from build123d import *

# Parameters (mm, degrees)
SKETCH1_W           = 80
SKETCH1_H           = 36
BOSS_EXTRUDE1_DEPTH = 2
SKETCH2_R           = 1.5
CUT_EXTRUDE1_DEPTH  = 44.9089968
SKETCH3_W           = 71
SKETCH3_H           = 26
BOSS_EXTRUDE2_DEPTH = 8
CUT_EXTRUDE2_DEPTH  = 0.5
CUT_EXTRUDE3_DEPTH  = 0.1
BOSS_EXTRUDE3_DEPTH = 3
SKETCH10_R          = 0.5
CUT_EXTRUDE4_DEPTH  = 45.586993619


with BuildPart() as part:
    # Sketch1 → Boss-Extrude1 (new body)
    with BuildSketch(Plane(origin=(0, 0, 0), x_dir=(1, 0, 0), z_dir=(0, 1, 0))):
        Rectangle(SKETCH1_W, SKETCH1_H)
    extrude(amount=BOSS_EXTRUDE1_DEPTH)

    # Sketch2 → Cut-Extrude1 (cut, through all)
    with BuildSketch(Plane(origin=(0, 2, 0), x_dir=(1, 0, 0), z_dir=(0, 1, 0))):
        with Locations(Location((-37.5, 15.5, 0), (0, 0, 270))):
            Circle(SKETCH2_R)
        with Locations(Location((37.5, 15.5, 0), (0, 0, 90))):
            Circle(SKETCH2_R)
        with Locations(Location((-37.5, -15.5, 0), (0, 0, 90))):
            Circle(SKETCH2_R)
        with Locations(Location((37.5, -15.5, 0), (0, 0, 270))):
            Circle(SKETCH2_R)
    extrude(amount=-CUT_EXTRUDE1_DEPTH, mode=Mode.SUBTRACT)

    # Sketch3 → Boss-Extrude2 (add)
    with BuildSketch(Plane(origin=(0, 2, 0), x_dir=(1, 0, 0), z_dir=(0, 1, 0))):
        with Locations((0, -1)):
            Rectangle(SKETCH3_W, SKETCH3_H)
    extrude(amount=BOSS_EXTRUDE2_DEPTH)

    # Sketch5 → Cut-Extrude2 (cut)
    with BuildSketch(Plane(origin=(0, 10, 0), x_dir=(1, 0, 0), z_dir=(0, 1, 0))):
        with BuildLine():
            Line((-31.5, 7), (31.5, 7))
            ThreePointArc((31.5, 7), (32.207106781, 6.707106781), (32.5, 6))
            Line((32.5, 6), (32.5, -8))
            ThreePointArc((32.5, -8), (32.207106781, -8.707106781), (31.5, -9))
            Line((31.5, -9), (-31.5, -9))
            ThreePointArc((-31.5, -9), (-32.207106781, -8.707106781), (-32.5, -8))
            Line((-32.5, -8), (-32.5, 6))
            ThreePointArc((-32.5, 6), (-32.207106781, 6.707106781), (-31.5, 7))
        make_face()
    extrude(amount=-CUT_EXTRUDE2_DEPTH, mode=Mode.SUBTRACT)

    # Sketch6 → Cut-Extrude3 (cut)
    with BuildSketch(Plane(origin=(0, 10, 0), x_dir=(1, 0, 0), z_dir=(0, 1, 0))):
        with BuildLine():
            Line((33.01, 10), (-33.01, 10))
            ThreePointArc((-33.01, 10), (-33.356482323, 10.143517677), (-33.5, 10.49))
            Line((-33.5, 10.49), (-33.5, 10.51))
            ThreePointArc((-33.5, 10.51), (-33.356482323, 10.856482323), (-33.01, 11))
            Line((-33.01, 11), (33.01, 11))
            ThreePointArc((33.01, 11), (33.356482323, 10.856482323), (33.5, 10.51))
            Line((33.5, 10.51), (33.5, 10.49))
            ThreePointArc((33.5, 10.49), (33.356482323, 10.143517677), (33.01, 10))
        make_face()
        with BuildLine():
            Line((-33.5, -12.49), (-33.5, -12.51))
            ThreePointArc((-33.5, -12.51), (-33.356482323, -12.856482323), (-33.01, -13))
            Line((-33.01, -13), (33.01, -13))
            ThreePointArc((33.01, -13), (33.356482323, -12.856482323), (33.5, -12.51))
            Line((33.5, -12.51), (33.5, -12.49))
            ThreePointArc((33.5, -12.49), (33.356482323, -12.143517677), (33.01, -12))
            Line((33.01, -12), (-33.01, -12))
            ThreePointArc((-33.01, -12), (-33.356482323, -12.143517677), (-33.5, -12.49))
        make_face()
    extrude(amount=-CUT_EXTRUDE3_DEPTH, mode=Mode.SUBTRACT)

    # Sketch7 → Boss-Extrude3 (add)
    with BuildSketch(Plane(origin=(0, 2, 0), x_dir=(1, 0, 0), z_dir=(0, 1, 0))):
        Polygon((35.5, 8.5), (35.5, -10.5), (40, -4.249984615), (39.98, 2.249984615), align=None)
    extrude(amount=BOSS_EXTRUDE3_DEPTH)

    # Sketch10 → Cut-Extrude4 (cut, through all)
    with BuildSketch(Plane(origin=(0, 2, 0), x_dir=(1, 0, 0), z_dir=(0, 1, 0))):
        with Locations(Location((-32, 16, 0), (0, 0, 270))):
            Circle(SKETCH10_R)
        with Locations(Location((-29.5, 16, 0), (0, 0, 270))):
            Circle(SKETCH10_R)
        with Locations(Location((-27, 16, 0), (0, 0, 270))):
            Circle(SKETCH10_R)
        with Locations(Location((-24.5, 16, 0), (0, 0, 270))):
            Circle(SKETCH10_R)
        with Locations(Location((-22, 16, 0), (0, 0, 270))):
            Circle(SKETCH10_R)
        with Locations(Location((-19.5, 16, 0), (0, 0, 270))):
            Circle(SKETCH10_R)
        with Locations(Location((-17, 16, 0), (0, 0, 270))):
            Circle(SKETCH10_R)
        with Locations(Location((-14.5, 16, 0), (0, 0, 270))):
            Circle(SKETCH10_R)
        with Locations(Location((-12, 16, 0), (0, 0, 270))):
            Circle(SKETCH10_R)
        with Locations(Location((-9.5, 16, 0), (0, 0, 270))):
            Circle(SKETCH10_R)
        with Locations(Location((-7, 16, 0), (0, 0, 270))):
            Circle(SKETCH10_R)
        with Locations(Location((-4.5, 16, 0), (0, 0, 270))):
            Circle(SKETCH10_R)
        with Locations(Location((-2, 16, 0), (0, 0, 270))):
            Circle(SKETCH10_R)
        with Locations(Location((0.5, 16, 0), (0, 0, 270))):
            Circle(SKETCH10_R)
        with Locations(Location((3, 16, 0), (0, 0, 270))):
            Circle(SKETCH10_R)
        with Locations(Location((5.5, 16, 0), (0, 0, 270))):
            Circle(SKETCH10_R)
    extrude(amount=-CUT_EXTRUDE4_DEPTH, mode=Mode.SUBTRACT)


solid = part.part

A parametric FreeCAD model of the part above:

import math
import FreeCAD as App
import Part
import Sketcher
from FreeCAD import Vector
Q = App.Units.Quantity

doc = App.newDocument("Part")
body = doc.addObject("PartDesign::Body", "Body")

# Sketch on XZ plane
sketch1 = body.newObject("Sketcher::SketchObject", "Sketch")
sketch1.AttachmentSupport = (doc.getObject("XZ_Plane"), [""])
sketch1.MapMode = "FlatFace"
sketch1.addGeometry(Part.LineSegment(Vector(-40, -18, 0), Vector(-40, 18, 0)), False)
sketch1.addGeometry(Part.LineSegment(Vector(-40, 18, 0), Vector(40, 18, 0)), False)
sketch1.addGeometry(Part.LineSegment(Vector(40, 18, 0), Vector(40, -18, 0)), False)
sketch1.addGeometry(Part.LineSegment(Vector(40, -18, 0), Vector(-40, -18, 0)), False)
sketch1.addConstraint(Sketcher.Constraint("Coincident", 0, 2, 1, 1))
sketch1.addConstraint(Sketcher.Constraint("Coincident", 1, 2, 2, 1))
sketch1.addConstraint(Sketcher.Constraint("Coincident", 2, 2, 3, 1))
sketch1.addConstraint(Sketcher.Constraint("Coincident", 3, 2, 0, 1))
sketch1.addConstraint(Sketcher.Constraint("Vertical", 0))
sketch1.addConstraint(Sketcher.Constraint("Horizontal", 1))
sketch1.addConstraint(Sketcher.Constraint("Vertical", 2))
sketch1.addConstraint(Sketcher.Constraint("Horizontal", 3))
sketch1.addConstraint(Sketcher.Constraint("Symmetric", 0, 2, 2, 2, -1, 1))
sketch1.addConstraint(Sketcher.Constraint("DistanceX", 1, 1, 1, 2, Q("80 mm")))
sketch1.addConstraint(Sketcher.Constraint("DistanceY", 0, 1, 0, 2, Q("36 mm")))
pad1 = body.newObject("PartDesign::Pad", "Pad")
pad1.Profile = sketch1
pad1.Length = 2
pad1.Reversed = True

# Sketch on XZ plane
sketch2 = body.newObject("Sketcher::SketchObject", "Sketch001")
sketch2.AttachmentSupport = (doc.getObject("XZ_Plane"), [""])
sketch2.MapMode = "FlatFace"
sketch2.AttachmentOffset = App.Placement(Vector(0, 0, -2), App.Rotation())
sketch2.addGeometry(Part.Circle(Vector(-37.5, -15.5, 0), Vector(0, 0, 1), 1.5), False)
sketch2.addGeometry(Part.Circle(Vector(37.5, -15.5, 0), Vector(0, 0, 1), 1.5), False)
sketch2.addGeometry(Part.Circle(Vector(-37.5, 15.5, 0), Vector(0, 0, 1), 1.5), False)
sketch2.addGeometry(Part.Circle(Vector(37.5, 15.5, 0), Vector(0, 0, 1), 1.5), False)
sketch2.addConstraint(Sketcher.Constraint("Equal", 0, 1))
sketch2.addConstraint(Sketcher.Constraint("Equal", 1, 2))
sketch2.addConstraint(Sketcher.Constraint("Equal", 2, 3))
sketch2.addConstraint(Sketcher.Constraint("Symmetric", 1, 3, 2, 3, -1, 1))
sketch2.addConstraint(Sketcher.Constraint("Symmetric", 0, 3, 3, 3, -1, 1))
sketch2.addConstraint(Sketcher.Constraint("Symmetric", 0, 3, 1, 3, -2))
sketch2.addConstraint(Sketcher.Constraint("Diameter", 0, Q("3 mm")))
sketch2.addConstraint(Sketcher.Constraint("DistanceX", 0, 3, 1, 3, Q("75 mm")))
sketch2.addConstraint(Sketcher.Constraint("DistanceY", 0, 3, 2, 3, Q("31 mm")))
pocket1 = body.newObject("PartDesign::Pocket", "Pocket")
pocket1.Profile = sketch2
pocket1.Type = "ThroughAll"
pocket1.Reversed = True

# Sketch on XZ plane
sketch3 = body.newObject("Sketcher::SketchObject", "Sketch002")
sketch3.AttachmentSupport = (doc.getObject("XZ_Plane"), [""])
sketch3.MapMode = "FlatFace"
sketch3.AttachmentOffset = App.Placement(Vector(0, 0, -2), App.Rotation())
sketch3.addGeometry(Part.LineSegment(Vector(-36, -12, 0), Vector(-36, 14, 0)), False)
sketch3.addGeometry(Part.LineSegment(Vector(-36, 14, 0), Vector(36, 14, 0)), False)
sketch3.addGeometry(Part.LineSegment(Vector(36, 14, 0), Vector(36, -12, 0)), False)
sketch3.addGeometry(Part.LineSegment(Vector(36, -12, 0), Vector(-36, -12, 0)), False)
sketch3.addConstraint(Sketcher.Constraint("Coincident", 0, 2, 1, 1))
sketch3.addConstraint(Sketcher.Constraint("Coincident", 1, 2, 2, 1))
sketch3.addConstraint(Sketcher.Constraint("Coincident", 2, 2, 3, 1))
sketch3.addConstraint(Sketcher.Constraint("Coincident", 3, 2, 0, 1))
sketch3.addConstraint(Sketcher.Constraint("Vertical", 0))
sketch3.addConstraint(Sketcher.Constraint("Horizontal", 1))
sketch3.addConstraint(Sketcher.Constraint("Vertical", 2))
sketch3.addConstraint(Sketcher.Constraint("Horizontal", 3))
sketch3.addConstraint(Sketcher.Constraint("DistanceX", 1, 1, 1, 2, Q("71 mm")))
sketch3.addConstraint(Sketcher.Constraint("DistanceY", 0, 1, 0, 2, Q("26 mm")))
sketch3.addConstraint(Sketcher.Constraint("DistanceY", -1, 1, 0, 2, Q("14 mm")))
sketch3.addConstraint(Sketcher.Constraint("DistanceX", 0, 2, -1, 1, Q("35.5 mm")))
pad2 = body.newObject("PartDesign::Pad", "Pad001")
pad2.Profile = sketch3
pad2.Length = 8
pad2.Reversed = True

# Sketch on XZ plane
sketch4 = body.newObject("Sketcher::SketchObject", "Sketch003")
sketch4.AttachmentSupport = (doc.getObject("XZ_Plane"), [""])
sketch4.MapMode = "FlatFace"
sketch4.AttachmentOffset = App.Placement(Vector(0, 0, -10), App.Rotation())
sketch4.addGeometry(Part.LineSegment(Vector(31.5, -7, 0), Vector(-31.5, -7, 0)), False)
sketch4.addGeometry(Part.ArcOfCircle(Part.Circle(Vector(-31.5, -6, 0), Vector(0, 0, 1), 1), math.radians(-180), math.radians(-90)), False)
sketch4.addGeometry(Part.LineSegment(Vector(-32.5, -6, 0), Vector(-32.5, 8, 0)), False)
sketch4.addGeometry(Part.ArcOfCircle(Part.Circle(Vector(-31.5, 8, 0), Vector(0, 0, 1), 1), math.radians(90), math.radians(180)), False)
sketch4.addGeometry(Part.LineSegment(Vector(-31.5, 9, 0), Vector(31.5, 9, 0)), False)
sketch4.addGeometry(Part.ArcOfCircle(Part.Circle(Vector(31.5, 8, 0), Vector(0, 0, 1), 1), math.radians(0), math.radians(90)), False)
sketch4.addGeometry(Part.LineSegment(Vector(32.5, 8, 0), Vector(32.5, -6, 0)), False)
sketch4.addGeometry(Part.ArcOfCircle(Part.Circle(Vector(31.5, -6, 0), Vector(0, 0, 1), 1), math.radians(-90), math.radians(0)), False)
sketch4.addConstraint(Sketcher.Constraint("Tangent", 0, 2, 1, 2))
sketch4.addConstraint(Sketcher.Constraint("Tangent", 1, 1, 2, 1))
sketch4.addConstraint(Sketcher.Constraint("Tangent", 2, 2, 3, 2))
sketch4.addConstraint(Sketcher.Constraint("Tangent", 3, 1, 4, 1))
sketch4.addConstraint(Sketcher.Constraint("Tangent", 4, 2, 5, 2))
sketch4.addConstraint(Sketcher.Constraint("Tangent", 5, 1, 6, 1))
sketch4.addConstraint(Sketcher.Constraint("Tangent", 6, 2, 7, 2))
sketch4.addConstraint(Sketcher.Constraint("Tangent", 7, 1, 0, 1))
sketch4.addConstraint(Sketcher.Constraint("Horizontal", 0))
sketch4.addConstraint(Sketcher.Constraint("Vertical", 2))
sketch4.addConstraint(Sketcher.Constraint("Horizontal", 4))
sketch4.addConstraint(Sketcher.Constraint("Vertical", 6))
sketch4.addConstraint(Sketcher.Constraint("Equal", 1, 3))
sketch4.addConstraint(Sketcher.Constraint("Equal", 3, 5))
sketch4.addConstraint(Sketcher.Constraint("Equal", 5, 7))
sketch4.addConstraint(Sketcher.Constraint("Radius", 1, Q("1 mm")))
sketch4.addConstraint(Sketcher.Constraint("DistanceX", 0, 2, 0, 1, Q("63 mm")))
sketch4.addConstraint(Sketcher.Constraint("DistanceY", 2, 1, 2, 2, Q("14 mm")))
sketch4.addConstraint(Sketcher.Constraint("DistanceY", 1, 3, -1, 1, Q("6 mm")))
sketch4.addConstraint(Sketcher.Constraint("DistanceX", 1, 3, -1, 1, Q("31.5 mm")))
pocket2 = body.newObject("PartDesign::Pocket", "Pocket001")
pocket2.Profile = sketch4
pocket2.Length = 0.5
pocket2.Reversed = True

# Sketch on XZ plane
sketch5 = body.newObject("Sketcher::SketchObject", "Sketch004")
sketch5.AttachmentSupport = (doc.getObject("XZ_Plane"), [""])
sketch5.MapMode = "FlatFace"
sketch5.AttachmentOffset = App.Placement(Vector(0, 0, -10), App.Rotation())
sketch5.addGeometry(Part.LineSegment(Vector(-33.01, -10, 0), Vector(33.01, -10, 0)), False)
sketch5.addGeometry(Part.ArcOfCircle(Part.Circle(Vector(33.01, -10.49, 0), Vector(0, 0, 1), 0.49), math.radians(0), math.radians(90)), False)
sketch5.addGeometry(Part.LineSegment(Vector(33.5, -10.49, 0), Vector(33.5, -10.51, 0)), False)
sketch5.addGeometry(Part.ArcOfCircle(Part.Circle(Vector(33.01, -10.51, 0), Vector(0, 0, 1), 0.49), math.radians(-90), math.radians(0)), False)
sketch5.addGeometry(Part.LineSegment(Vector(33.01, -11, 0), Vector(-33.01, -11, 0)), False)
sketch5.addGeometry(Part.ArcOfCircle(Part.Circle(Vector(-33.01, -10.51, 0), Vector(0, 0, 1), 0.49), math.radians(180), math.radians(270)), False)
sketch5.addGeometry(Part.LineSegment(Vector(-33.5, -10.51, 0), Vector(-33.5, -10.49, 0)), False)
sketch5.addGeometry(Part.ArcOfCircle(Part.Circle(Vector(-33.01, -10.49, 0), Vector(0, 0, 1), 0.49), math.radians(90), math.radians(180)), False)
sketch5.addGeometry(Part.LineSegment(Vector(-33.5, 12.49, 0), Vector(-33.5, 12.51, 0)), False)
sketch5.addGeometry(Part.ArcOfCircle(Part.Circle(Vector(-33.01, 12.51, 0), Vector(0, 0, 1), 0.49), math.radians(90), math.radians(180)), False)
sketch5.addGeometry(Part.LineSegment(Vector(-33.01, 13, 0), Vector(33.01, 13, 0)), False)
sketch5.addGeometry(Part.ArcOfCircle(Part.Circle(Vector(33.01, 12.51, 0), Vector(0, 0, 1), 0.49), math.radians(0), math.radians(90)), False)
sketch5.addGeometry(Part.LineSegment(Vector(33.5, 12.51, 0), Vector(33.5, 12.49, 0)), False)
sketch5.addGeometry(Part.ArcOfCircle(Part.Circle(Vector(33.01, 12.49, 0), Vector(0, 0, 1), 0.49), math.radians(-90), math.radians(0)), False)
sketch5.addGeometry(Part.LineSegment(Vector(33.01, 12, 0), Vector(-33.01, 12, 0)), False)
sketch5.addGeometry(Part.ArcOfCircle(Part.Circle(Vector(-33.01, 12.49, 0), Vector(0, 0, 1), 0.49), math.radians(180), math.radians(270)), False)
sketch5.addConstraint(Sketcher.Constraint("Tangent", 0, 2, 1, 2))
sketch5.addConstraint(Sketcher.Constraint("Tangent", 1, 1, 2, 1))
sketch5.addConstraint(Sketcher.Constraint("Tangent", 2, 2, 3, 2))
sketch5.addConstraint(Sketcher.Constraint("Tangent", 3, 1, 4, 1))
sketch5.addConstraint(Sketcher.Constraint("Tangent", 4, 2, 5, 2))
sketch5.addConstraint(Sketcher.Constraint("Tangent", 5, 1, 6, 1))
sketch5.addConstraint(Sketcher.Constraint("Tangent", 6, 2, 7, 2))
sketch5.addConstraint(Sketcher.Constraint("Tangent", 7, 1, 0, 1))
sketch5.addConstraint(Sketcher.Constraint("Tangent", 8, 2, 9, 2))
sketch5.addConstraint(Sketcher.Constraint("Tangent", 9, 1, 10, 1))
sketch5.addConstraint(Sketcher.Constraint("Tangent", 10, 2, 11, 2))
sketch5.addConstraint(Sketcher.Constraint("Tangent", 11, 1, 12, 1))
sketch5.addConstraint(Sketcher.Constraint("Tangent", 12, 2, 13, 2))
sketch5.addConstraint(Sketcher.Constraint("Tangent", 13, 1, 14, 1))
sketch5.addConstraint(Sketcher.Constraint("Tangent", 14, 2, 15, 2))
sketch5.addConstraint(Sketcher.Constraint("Tangent", 15, 1, 8, 1))
sketch5.addConstraint(Sketcher.Constraint("Horizontal", 0))
sketch5.addConstraint(Sketcher.Constraint("Vertical", 2))
sketch5.addConstraint(Sketcher.Constraint("Horizontal", 4))
sketch5.addConstraint(Sketcher.Constraint("Vertical", 6))
sketch5.addConstraint(Sketcher.Constraint("Vertical", 8))
sketch5.addConstraint(Sketcher.Constraint("Horizontal", 10))
sketch5.addConstraint(Sketcher.Constraint("Vertical", 12))
sketch5.addConstraint(Sketcher.Constraint("Horizontal", 14))
sketch5.addConstraint(Sketcher.Constraint("Equal", 1, 3))
sketch5.addConstraint(Sketcher.Constraint("Equal", 3, 5))
sketch5.addConstraint(Sketcher.Constraint("Equal", 5, 7))
sketch5.addConstraint(Sketcher.Constraint("Equal", 7, 9))
sketch5.addConstraint(Sketcher.Constraint("Equal", 9, 11))
sketch5.addConstraint(Sketcher.Constraint("Equal", 11, 13))
sketch5.addConstraint(Sketcher.Constraint("Equal", 13, 15))
sketch5.addConstraint(Sketcher.Constraint("Vertical", 7, 3, 9, 3))
sketch5.addConstraint(Sketcher.Constraint("Vertical", 3, 3, 11, 3))
sketch5.addConstraint(Sketcher.Constraint("Equal", 6, 8))
sketch5.addConstraint(Sketcher.Constraint("Radius", 1, Q("0.49 mm")))
sketch5.addConstraint(Sketcher.Constraint("DistanceY", 0, 2, -1, 1, Q("10 mm")))
sketch5.addConstraint(Sketcher.Constraint("DistanceY", 3, 1, -1, 1, Q("11 mm")))
sketch5.addConstraint(Sketcher.Constraint("DistanceY", -1, 1, 9, 1, Q("13 mm")))
sketch5.addConstraint(Sketcher.Constraint("DistanceX", 0, 1, 0, 2, Q("66.02 mm")))
sketch5.addConstraint(Sketcher.Constraint("DistanceX", -1, 1, 1, 1, Q("33.5 mm")))
pocket3 = body.newObject("PartDesign::Pocket", "Pocket002")
pocket3.Profile = sketch5
pocket3.Length = 0.1
pocket3.Reversed = True

# Sketch on XZ plane
sketch6 = body.newObject("Sketcher::SketchObject", "Sketch005")
sketch6.AttachmentSupport = (doc.getObject("XZ_Plane"), [""])
sketch6.MapMode = "FlatFace"
sketch6.AttachmentOffset = App.Placement(Vector(0, 0, -2), App.Rotation())
sketch6.addGeometry(Part.LineSegment(Vector(36, -8, 0), Vector(36, 10, 0)), False)
sketch6.addGeometry(Part.LineSegment(Vector(36, 10, 0), Vector(40, 4, 0)), False)
sketch6.addGeometry(Part.LineSegment(Vector(40, 4, 0), Vector(40, -2, 0)), False)
sketch6.addGeometry(Part.LineSegment(Vector(40, -2, 0), Vector(36, -8, 0)), False)
sketch6.addConstraint(Sketcher.Constraint("Coincident", 0, 2, 1, 1))
sketch6.addConstraint(Sketcher.Constraint("Coincident", 1, 2, 2, 1))
sketch6.addConstraint(Sketcher.Constraint("Coincident", 2, 2, 3, 1))
sketch6.addConstraint(Sketcher.Constraint("Coincident", 3, 2, 0, 1))
sketch6.addConstraint(Sketcher.Constraint("Vertical", 0))
sketch6.addConstraint(Sketcher.Constraint("DistanceY", 0, 1, 0, 2, Q("19 mm")))
sketch6.addConstraint(Sketcher.Constraint("DistanceX", -1, 1, 1, 2, Q("40 mm")))
sketch6.addConstraint(Sketcher.Constraint("Distance", 2, Q("6.5 mm")))
sketch6.addConstraint(Sketcher.Constraint("DistanceX", -1, 1, 0, 2, Q("35.5 mm")))
sketch6.addConstraint(Sketcher.Constraint("DistanceY", -1, 1, 0, 2, Q("10.5 mm")))
sketch6.addConstraint(Sketcher.Constraint("DistanceX", -1, 1, 2, 2, Q("39.98 mm")))
sketch6.addConstraint(Sketcher.Constraint("Distance", 1, Q("7.701473 mm")))
pad3 = body.newObject("PartDesign::Pad", "Pad002")
pad3.Profile = sketch6
pad3.Length = 3
pad3.Reversed = True

# Sketch on XZ plane
sketch7 = body.newObject("Sketcher::SketchObject", "Sketch006")
sketch7.AttachmentSupport = (doc.getObject("XZ_Plane"), [""])
sketch7.MapMode = "FlatFace"
sketch7.AttachmentOffset = App.Placement(Vector(0, 0, -2), App.Rotation())
sketch7.addGeometry(Part.Circle(Vector(-32, -16, 0), Vector(0, 0, 1), 0.5), False)
sketch7.addGeometry(Part.Circle(Vector(-29.5, -16, 0), Vector(0, 0, 1), 0.5), False)
sketch7.addGeometry(Part.Circle(Vector(-27, -16, 0), Vector(0, 0, 1), 0.5), False)
sketch7.addGeometry(Part.Circle(Vector(-24.5, -16, 0), Vector(0, 0, 1), 0.5), False)
sketch7.addGeometry(Part.Circle(Vector(-22, -16, 0), Vector(0, 0, 1), 0.5), False)
sketch7.addGeometry(Part.Circle(Vector(-19.5, -16, 0), Vector(0, 0, 1), 0.5), False)
sketch7.addGeometry(Part.Circle(Vector(-17, -16, 0), Vector(0, 0, 1), 0.5), False)
sketch7.addGeometry(Part.Circle(Vector(-14.5, -16, 0), Vector(0, 0, 1), 0.5), False)
sketch7.addGeometry(Part.Circle(Vector(-12, -16, 0), Vector(0, 0, 1), 0.5), False)
sketch7.addGeometry(Part.Circle(Vector(-9.5, -16, 0), Vector(0, 0, 1), 0.5), False)
sketch7.addGeometry(Part.Circle(Vector(-7, -16, 0), Vector(0, 0, 1), 0.5), False)
sketch7.addGeometry(Part.Circle(Vector(-4.5, -16, 0), Vector(0, 0, 1), 0.5), False)
sketch7.addGeometry(Part.Circle(Vector(-2, -16, 0), Vector(0, 0, 1), 0.5), False)
sketch7.addGeometry(Part.Circle(Vector(0.5, -16, 0), Vector(0, 0, 1), 0.5), False)
sketch7.addGeometry(Part.Circle(Vector(3, -16, 0), Vector(0, 0, 1), 0.5), False)
sketch7.addGeometry(Part.Circle(Vector(5.5, -16, 0), Vector(0, 0, 1), 0.5), False)
sketch7.addConstraint(Sketcher.Constraint("Equal", 0, 1))
sketch7.addConstraint(Sketcher.Constraint("Equal", 1, 2))
sketch7.addConstraint(Sketcher.Constraint("Equal", 2, 3))
sketch7.addConstraint(Sketcher.Constraint("Equal", 3, 4))
sketch7.addConstraint(Sketcher.Constraint("Equal", 4, 5))
sketch7.addConstraint(Sketcher.Constraint("Equal", 5, 6))
sketch7.addConstraint(Sketcher.Constraint("Equal", 6, 7))
sketch7.addConstraint(Sketcher.Constraint("Equal", 7, 8))
sketch7.addConstraint(Sketcher.Constraint("Equal", 8, 9))
sketch7.addConstraint(Sketcher.Constraint("Equal", 9, 10))
sketch7.addConstraint(Sketcher.Constraint("Equal", 10, 11))
sketch7.addConstraint(Sketcher.Constraint("Equal", 11, 12))
sketch7.addConstraint(Sketcher.Constraint("Equal", 12, 13))
sketch7.addConstraint(Sketcher.Constraint("Equal", 13, 14))
sketch7.addConstraint(Sketcher.Constraint("Equal", 14, 15))
sketch7.addConstraint(Sketcher.Constraint("Horizontal", 0, 3, 1, 3))
sketch7.addConstraint(Sketcher.Constraint("Horizontal", 1, 3, 2, 3))
sketch7.addConstraint(Sketcher.Constraint("Horizontal", 2, 3, 3, 3))
sketch7.addConstraint(Sketcher.Constraint("Horizontal", 3, 3, 4, 3))
sketch7.addConstraint(Sketcher.Constraint("Horizontal", 4, 3, 5, 3))
sketch7.addConstraint(Sketcher.Constraint("Horizontal", 5, 3, 6, 3))
sketch7.addConstraint(Sketcher.Constraint("Horizontal", 6, 3, 7, 3))
sketch7.addConstraint(Sketcher.Constraint("Horizontal", 7, 3, 8, 3))
sketch7.addConstraint(Sketcher.Constraint("Horizontal", 8, 3, 9, 3))
sketch7.addConstraint(Sketcher.Constraint("Horizontal", 9, 3, 10, 3))
sketch7.addConstraint(Sketcher.Constraint("Horizontal", 10, 3, 11, 3))
sketch7.addConstraint(Sketcher.Constraint("Horizontal", 11, 3, 12, 3))
sketch7.addConstraint(Sketcher.Constraint("Horizontal", 12, 3, 13, 3))
sketch7.addConstraint(Sketcher.Constraint("Horizontal", 13, 3, 14, 3))
sketch7.addConstraint(Sketcher.Constraint("Horizontal", 14, 3, 15, 3))
sketch7.addConstraint(Sketcher.Constraint("Diameter", 0, Q("1 mm")))
sketch7.addConstraint(Sketcher.Constraint("DistanceX", 0, 3, -1, 1, Q("32 mm")))
sketch7.addConstraint(Sketcher.Constraint("DistanceY", 0, 3, -1, 1, Q("16 mm")))
sketch7.addConstraint(Sketcher.Constraint("DistanceX", 2, 3, -1, 1, Q("27 mm")))
sketch7.addConstraint(Sketcher.Constraint("DistanceX", 4, 3, -1, 1, Q("22 mm")))
sketch7.addConstraint(Sketcher.Constraint("DistanceX", 6, 3, -1, 1, Q("17 mm")))
sketch7.addConstraint(Sketcher.Constraint("DistanceX", 8, 3, -1, 1, Q("12 mm")))
sketch7.addConstraint(Sketcher.Constraint("DistanceX", 10, 3, -1, 1, Q("7 mm")))
sketch7.addConstraint(Sketcher.Constraint("DistanceX", 12, 3, -1, 1, Q("2 mm")))
sketch7.addConstraint(Sketcher.Constraint("DistanceX", -1, 1, 14, 3, Q("3 mm")))
sketch7.addConstraint(Sketcher.Constraint("DistanceX", 1, 3, 3, 3, Q("5 mm")))
sketch7.addConstraint(Sketcher.Constraint("DistanceX", 3, 3, 5, 3, Q("5 mm")))
sketch7.addConstraint(Sketcher.Constraint("DistanceX", 5, 3, 7, 3, Q("5 mm")))
sketch7.addConstraint(Sketcher.Constraint("DistanceX", 7, 3, 9, 3, Q("5 mm")))
sketch7.addConstraint(Sketcher.Constraint("DistanceX", 9, 3, 11, 3, Q("5 mm")))
sketch7.addConstraint(Sketcher.Constraint("DistanceX", 11, 3, 13, 3, Q("5 mm")))
sketch7.addConstraint(Sketcher.Constraint("DistanceX", 13, 3, 15, 3, Q("5 mm")))
sketch7.addConstraint(Sketcher.Constraint("DistanceX", 1, 3, -1, 1, Q("29.5 mm")))
pocket4 = body.newObject("PartDesign::Pocket", "Pocket003")
pocket4.Profile = sketch7
pocket4.Type = "ThroughAll"
pocket4.Reversed = True

doc.recompute()
